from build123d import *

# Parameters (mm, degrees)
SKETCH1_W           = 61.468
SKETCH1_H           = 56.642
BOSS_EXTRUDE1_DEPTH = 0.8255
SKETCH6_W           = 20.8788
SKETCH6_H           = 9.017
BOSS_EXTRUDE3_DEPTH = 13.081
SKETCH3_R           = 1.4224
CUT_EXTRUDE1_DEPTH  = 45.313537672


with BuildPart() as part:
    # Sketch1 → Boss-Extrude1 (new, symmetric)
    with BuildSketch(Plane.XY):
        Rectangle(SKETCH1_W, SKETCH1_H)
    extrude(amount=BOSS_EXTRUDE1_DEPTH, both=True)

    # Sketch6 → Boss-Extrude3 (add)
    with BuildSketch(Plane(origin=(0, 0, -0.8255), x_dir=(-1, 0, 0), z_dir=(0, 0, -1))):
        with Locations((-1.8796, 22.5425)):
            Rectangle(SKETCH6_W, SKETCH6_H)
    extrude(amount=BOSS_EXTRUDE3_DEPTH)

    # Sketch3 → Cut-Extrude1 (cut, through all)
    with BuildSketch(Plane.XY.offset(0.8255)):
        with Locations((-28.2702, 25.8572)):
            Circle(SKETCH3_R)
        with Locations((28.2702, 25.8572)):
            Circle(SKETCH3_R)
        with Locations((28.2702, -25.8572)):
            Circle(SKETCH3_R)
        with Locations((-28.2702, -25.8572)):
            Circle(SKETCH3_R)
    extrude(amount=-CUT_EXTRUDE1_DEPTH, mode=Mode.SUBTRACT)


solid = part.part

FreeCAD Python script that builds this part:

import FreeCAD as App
import Part
import Sketcher

V = App.Vector
Q = App.Units.Quantity

doc = App.newDocument("Part")
params = doc.addObject("Spreadsheet::Sheet", "Params")
for row, (alias, value) in enumerate([
    ("sketch1_width", "2.42 in"),
    ("sketch1_height", "2.23 in"),
    ("pad1_length", "0.065 in"),
    ("sketch2_width", "0.822 in"),
    ("sketch2_height", "0.355 in"),
    ("pad2_length", "0.515 in"),
    ("sketch3_diameter", "0.112 in"),
], start=1):
    params.set(f"A{row}", alias)
    params.set(f"B{row}", "=" + value)
    params.setAlias(f"B{row}", alias)

body = doc.addObject("PartDesign::Body", "Body")

# Sketch on XY plane
sketch1 = body.newObject("Sketcher::SketchObject", "Sketch")
sketch1.AttachmentSupport = (doc.getObject("XY_Plane"), [""])
sketch1.MapMode = "FlatFace"
sketch1.addGeometry(Part.LineSegment(V(-31, 28, 0), V(-31, -28, 0)), False)
sketch1.addGeometry(Part.LineSegment(V(-31, -28, 0), V(31, -28, 0)), False)
sketch1.addGeometry(Part.LineSegment(V(31, -28, 0), V(31, 28, 0)), False)
sketch1.addGeometry(Part.LineSegment(V(31, 28, 0), V(-31, 28, 0)), False)
sketch1.addConstraint(Sketcher.Constraint("Coincident", 0, 2, 1, 1))
sketch1.addConstraint(Sketcher.Constraint("Coincident", 1, 2, 2, 1))
sketch1.addConstraint(Sketcher.Constraint("Coincident", 2, 2, 3, 1))
sketch1.addConstraint(Sketcher.Constraint("Coincident", 3, 2, 0, 1))
sketch1.addConstraint(Sketcher.Constraint("Vertical", 0))
sketch1.addConstraint(Sketcher.Constraint("Horizontal", 1))
sketch1.addConstraint(Sketcher.Constraint("Vertical", 2))
sketch1.addConstraint(Sketcher.Constraint("Horizontal", 3))
sketch1.addConstraint(Sketcher.Constraint("Symmetric", 0, 2, 2, 2, -1, 1))
sketch1.addConstraint(Sketcher.Constraint("DistanceX", 1, 1, 1, 2, Q("2.42 in")))
sketch1.addConstraint(Sketcher.Constraint("DistanceY", 0, 2, 0, 1, Q("2.23 in")))
sketch1.setExpression("Constraints[9]", "Params.sketch1_width")
sketch1.setExpression("Constraints[10]", "Params.sketch1_height")
pad1 = body.newObject("PartDesign::Pad", "Pad")
pad1.Profile = sketch1
pad1.setExpression("Length", "Params.pad1_length")
pad1.Midplane = True

# Sketch on XY plane
sketch2 = body.newObject("Sketcher::SketchObject", "Sketch001")
sketch2.AttachmentSupport = (doc.getObject("XY_Plane"), [""])
sketch2.MapMode = "FlatFace"
sketch2.AttachmentOffset = App.Placement(V(0, 0, -0.0325 * 25.4), App.Rotation())
sketch2.addGeometry(Part.LineSegment(V(12, 27, 0), V(12, 18, 0)), False)
sketch2.addGeometry(Part.LineSegment(V(12, 18, 0), V(-9, 18, 0)), False)
sketch2.addGeometry(Part.LineSegment(V(-9, 18, 0), V(-9, 27, 0)), False)
sketch2.addGeometry(Part.LineSegment(V(-9, 27, 0), V(12, 27, 0)), False)
sketch2.addConstraint(Sketcher.Constraint("Coincident", 0, 2, 1, 1))
sketch2.addConstraint(Sketcher.Constraint("Coincident", 1, 2, 2, 1))
sketch2.addConstraint(Sketcher.Constraint("Coincident", 2, 2, 3, 1))
sketch2.addConstraint(Sketcher.Constraint("Coincident", 3, 2, 0, 1))
sketch2.addConstraint(Sketcher.Constraint("Vertical", 0))
sketch2.addConstraint(Sketcher.Constraint("Horizontal", 1))
sketch2.addConstraint(Sketcher.Constraint("Vertical", 2))
sketch2.addConstraint(Sketcher.Constraint("Horizontal", 3))
sketch2.addConstraint(Sketcher.Constraint("DistanceX", 1, 2, 1, 1, Q("0.822 in")))
sketch2.addConstraint(Sketcher.Constraint("DistanceY", 0, 2, 0, 1, Q("0.355 in")))
sketch2.addConstraint(Sketcher.Constraint("DistanceY", -1, 1, 0, 2, Q("0.71 in")))
sketch2.addConstraint(Sketcher.Constraint("DistanceX", -1, 1, 0, 2, Q("0.485 in")))
sketch2.setExpression("Constraints[8]", "Params.sketch2_width")
sketch2.setExpression("Constraints[9]", "Params.sketch2_height")
pad2 = body.newObject("PartDesign::Pad", "Pad001")
pad2.Profile = sketch2
pad2.setExpression("Length", "Params.pad2_length")
pad2.Reversed = True

# Sketch on XY plane
sketch3 = body.newObject("Sketcher::SketchObject", "Sketch002")
sketch3.AttachmentSupport = (doc.getObject("XY_Plane"), [""])
sketch3.MapMode = "FlatFace"
sketch3.AttachmentOffset = App.Placement(V(0, 0, 0.0325 * 25.4), App.Rotation())
sketch3.addGeometry(Part.Circle(V(-28.3, 25.9, 0), V(0, 0, 1), 1.4), False)
sketch3.addGeometry(Part.Circle(V(28.3, 25.9, 0), V(0, 0, 1), 1.4), False)
sketch3.addGeometry(Part.Circle(V(28.3, -25.9, 0), V(0, 0, 1), 1.4), False)
sketch3.addGeometry(Part.Circle(V(-28.3, -25.9, 0), V(0, 0, 1), 1.4), False)
sketch3.addConstraint(Sketcher.Constraint("Equal", 0, 1))
sketch3.addConstraint(Sketcher.Constraint("Equal", 1, 2))
sketch3.addConstraint(Sketcher.Constraint("Equal", 2, 3))
sketch3.addConstraint(Sketcher.Constraint("Symmetric", 0, 3, 2, 3, -1, 1))
sketch3.addConstraint(Sketcher.Constraint("Symmetric", 1, 3, 3, 3, -1, 1))
sketch3.addConstraint(Sketcher.Constraint("Symmetric", 0, 3, 1, 3, -2))
sketch3.addConstraint(Sketcher.Constraint("Diameter", 0, Q("0.112 in")))
sketch3.addConstraint(Sketcher.Constraint("DistanceX", 0, 3, -1, 1, Q("1.113 in")))
sketch3.addConstraint(Sketcher.Constraint("DistanceY", -1, 1, 0, 3, Q("1.018 in")))
sketch3.setExpression("Constraints[6]", "Params.sketch3_diameter")
pocket1 = body.newObject("PartDesign::Pocket", "Pocket")
pocket1.Profile = sketch3
pocket1.Type = "ThroughAll"

doc.recompute()
